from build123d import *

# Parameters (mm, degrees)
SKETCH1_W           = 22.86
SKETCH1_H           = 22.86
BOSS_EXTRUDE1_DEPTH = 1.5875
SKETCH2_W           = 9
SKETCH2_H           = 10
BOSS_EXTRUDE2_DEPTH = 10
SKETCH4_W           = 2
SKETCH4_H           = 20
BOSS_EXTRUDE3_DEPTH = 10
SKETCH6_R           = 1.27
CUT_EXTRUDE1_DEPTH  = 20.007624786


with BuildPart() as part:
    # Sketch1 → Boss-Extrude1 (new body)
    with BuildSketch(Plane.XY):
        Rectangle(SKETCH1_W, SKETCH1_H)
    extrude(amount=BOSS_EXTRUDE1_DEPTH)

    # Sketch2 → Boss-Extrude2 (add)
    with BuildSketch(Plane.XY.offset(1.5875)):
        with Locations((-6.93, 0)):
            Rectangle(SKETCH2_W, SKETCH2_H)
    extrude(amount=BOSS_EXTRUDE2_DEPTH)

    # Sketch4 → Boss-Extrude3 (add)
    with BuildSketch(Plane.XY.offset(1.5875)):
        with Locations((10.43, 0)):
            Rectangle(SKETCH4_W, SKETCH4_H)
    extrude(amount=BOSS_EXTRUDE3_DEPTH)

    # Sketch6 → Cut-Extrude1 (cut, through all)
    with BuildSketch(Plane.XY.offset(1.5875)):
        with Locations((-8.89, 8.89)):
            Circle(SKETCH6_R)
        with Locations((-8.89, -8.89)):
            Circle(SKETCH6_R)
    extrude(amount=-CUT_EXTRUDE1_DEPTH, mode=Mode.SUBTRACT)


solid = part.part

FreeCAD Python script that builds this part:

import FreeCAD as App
import Part
import Sketcher
from FreeCAD import Vector

doc = App.newDocument("Part")
params = doc.addObject("Spreadsheet::Sheet", "Params")
for row, (alias, value) in enumerate([
    ("sketch1_width", "22.86 mm"),
    ("pad1_length", "1.5875 mm"),
    ("sketch2_width", "9 mm"),
    ("sketch2_height", "10 mm"),
    ("pad2_length", "10 mm"),
    ("sketch3_width", "2 mm"),
    ("sketch3_height", "20 mm"),
    ("pad3_length", "10 mm"),
    ("sketch4_diameter", "2.54 mm"),
], start=1):
    params.set(f"A{row}", alias)
    params.set(f"B{row}", "=" + value)
    params.setAlias(f"B{row}", alias)

body = doc.addObject("PartDesign::Body", "Body")

sketch1 = body.newObject("Sketcher::SketchObject", "Sketch")
sketch1.AttachmentSupport = (doc.getObject("XY_Plane"), [""])
sketch1.MapMode = "FlatFace"
sketch1.addGeometry(Part.LineSegment(Vector(-11.43, 11.43, 0), Vector(-11.43, -11.43, 0)), False)
sketch1.addGeometry(Part.LineSegment(Vector(-11.43, -11.43, 0), Vector(11.43, -11.43, 0)), False)
sketch1.addGeometry(Part.LineSegment(Vector(11.43, -11.43, 0), Vector(11.43, 11.43, 0)), False)
sketch1.addGeometry(Part.LineSegment(Vector(11.43, 11.43, 0), Vector(-11.43, 11.43, 0)), False)
sketch1.addConstraint(Sketcher.Constraint("Coincident", 0, 2, 1, 1))
sketch1.addConstraint(Sketcher.Constraint("Coincident", 1, 2, 2, 1))
sketch1.addConstraint(Sketcher.Constraint("Coincident", 2, 2, 3, 1))
sketch1.addConstraint(Sketcher.Constraint("Coincident", 3, 2, 0, 1))
sketch1.addConstraint(Sketcher.Constraint("Vertical", 0))
sketch1.addConstraint(Sketcher.Constraint("Horizontal", 1))
sketch1.addConstraint(Sketcher.Constraint("Vertical", 2))
sketch1.addConstraint(Sketcher.Constraint("Horizontal", 3))
sketch1.addConstraint(Sketcher.Constraint("Symmetric", 0, 2, 2, 2, -1, 1))
sketch1.addConstraint(Sketcher.Constraint("Equal", 3, 0))
sketch1.addConstraint(Sketcher.Constraint("DistanceX", 1, 1, 1, 2, 22.86))
sketch1.setExpression("Constraints[10]", "Params.sketch1_width")
pad1 = body.newObject("PartDesign::Pad", "Pad")
pad1.Profile = sketch1
pad1.setExpression("Length", "Params.pad1_length")

sketch2 = body.newObject("Sketcher::SketchObject", "Sketch001")
sketch2.AttachmentSupport = (doc.getObject("XY_Plane"), [""])
sketch2.MapMode = "FlatFace"
sketch2.AttachmentOffset = App.Placement(Vector(0, 0, 1.5875), App.Rotation())
sketch2.addGeometry(Part.LineSegment(Vector(-11.43, 5, 0), Vector(-11.43, -5, 0)), False)
sketch2.addGeometry(Part.LineSegment(Vector(-11.43, -5, 0), Vector(-2.43, -5, 0)), False)
sketch2.addGeometry(Part.LineSegment(Vector(-2.43, -5, 0), Vector(-2.43, 5, 0)), False)
sketch2.addGeometry(Part.LineSegment(Vector(-2.43, 5, 0), Vector(-11.43, 5, 0)), False)
sketch2.addConstraint(Sketcher.Constraint("Coincident", 0, 2, 1, 1))
sketch2.addConstraint(Sketcher.Constraint("Coincident", 1, 2, 2, 1))
sketch2.addConstraint(Sketcher.Constraint("Coincident", 2, 2, 3, 1))
sketch2.addConstraint(Sketcher.Constraint("Coincident", 3, 2, 0, 1))
sketch2.addConstraint(Sketcher.Constraint("Vertical", 0))
sketch2.addConstraint(Sketcher.Constraint("Horizontal", 1))
sketch2.addConstraint(Sketcher.Constraint("Vertical", 2))
sketch2.addConstraint(Sketcher.Constraint("Horizontal", 3))
sketch2.addConstraint(Sketcher.Constraint("DistanceX", 1, 1, 1, 2, 9.0))
sketch2.addConstraint(Sketcher.Constraint("DistanceY", 0, 2, 0, 1, 10.0))
sketch2.addConstraint(Sketcher.Constraint("DistanceY", 0, 2, -1, 1, 5.0))
sketch2.addConstraint(Sketcher.Constraint("DistanceX", 0, 2, -1, 1, 11.43))
sketch2.setExpression("Constraints[8]", "Params.sketch2_width")
sketch2.setExpression("Constraints[9]", "Params.sketch2_height")
pad2 = body.newObject("PartDesign::Pad", "Pad001")
pad2.Profile = sketch2
pad2.setExpression("Length", "Params.pad2_length")

sketch3 = body.newObject("Sketcher::SketchObject", "Sketch002")
sketch3.AttachmentSupport = (doc.getObject("XY_Plane"), [""])
sketch3.MapMode = "FlatFace"
sketch3.AttachmentOffset = App.Placement(Vector(0, 0, 1.5875), App.Rotation())
sketch3.addGeometry(Part.LineSegment(Vector(9.43, 10, 0), Vector(9.43, -10, 0)), False)
sketch3.addGeometry(Part.LineSegment(Vector(9.43, -10, 0), Vector(11.43, -10, 0)), False)
sketch3.addGeometry(Part.LineSegment(Vector(11.43, -10, 0), Vector(11.43, 10, 0)), False)
sketch3.addGeometry(Part.LineSegment(Vector(11.43, 10, 0), Vector(9.43, 10, 0)), False)
sketch3.addConstraint(Sketcher.Constraint("Coincident", 0, 2, 1, 1))
sketch3.addConstraint(Sketcher.Constraint("Coincident", 1, 2, 2, 1))
sketch3.addConstraint(Sketcher.Constraint("Coincident", 2, 2, 3, 1))
sketch3.addConstraint(Sketcher.Constraint("Coincident", 3, 2, 0, 1))
sketch3.addConstraint(Sketcher.Constraint("Vertical", 0))
sketch3.addConstraint(Sketcher.Constraint("Horizontal", 1))
sketch3.addConstraint(Sketcher.Constraint("Vertical", 2))
sketch3.addConstraint(Sketcher.Constraint("Horizontal", 3))
sketch3.addConstraint(Sketcher.Constraint("DistanceX", 1, 1, 1, 2, 2.0))
sketch3.addConstraint(Sketcher.Constraint("DistanceY", 0, 2, 0, 1, 20.0))
sketch3.addConstraint(Sketcher.Constraint("DistanceY", 0, 2, -1, 1, 10.0))
sketch3.addConstraint(Sketcher.Constraint("DistanceX", -1, 1, 0, 2, 9.43))
sketch3.setExpression("Constraints[8]", "Params.sketch3_width")
sketch3.setExpression("Constraints[9]", "Params.sketch3_height")
pad3 = body.newObject("PartDesign::Pad", "Pad002")
pad3.Profile = sketch3
pad3.setExpression("Length", "Params.pad3_length")

sketch4 = body.newObject("Sketcher::SketchObject", "Sketch003")
sketch4.AttachmentSupport = (doc.getObject("XY_Plane"), [""])
sketch4.MapMode = "FlatFace"
sketch4.AttachmentOffset = App.Placement(Vector(0, 0, 1.5875), App.Rotation())
sketch4.addGeometry(Part.Circle(Vector(-8.89, 8.89, 0), Vector(0, 0, 1), 1.27), False)
sketch4.addGeometry(Part.Circle(Vector(-8.89, -8.89, 0), Vector(0, 0, 1), 1.27), False)
sketch4.addConstraint(Sketcher.Constraint("Equal", 0, 1))
sketch4.addConstraint(Sketcher.Constraint("Symmetric", 0, 3, 1, 3, -1))
sketch4.addConstraint(Sketcher.Constraint("Diameter", 0, 2.54))
sketch4.addConstraint(Sketcher.Constraint("DistanceX", 0, 3, -1, 1, 8.89))
sketch4.addConstraint(Sketcher.Constraint("DistanceY", -1, 1, 0, 3, 8.89))
sketch4.setExpression("Constraints[2]", "Params.sketch4_diameter")
pocket1 = body.newObject("PartDesign::Pocket", "Pocket")
pocket1.Profile = sketch4
pocket1.Type = "ThroughAll"

doc.recompute()
